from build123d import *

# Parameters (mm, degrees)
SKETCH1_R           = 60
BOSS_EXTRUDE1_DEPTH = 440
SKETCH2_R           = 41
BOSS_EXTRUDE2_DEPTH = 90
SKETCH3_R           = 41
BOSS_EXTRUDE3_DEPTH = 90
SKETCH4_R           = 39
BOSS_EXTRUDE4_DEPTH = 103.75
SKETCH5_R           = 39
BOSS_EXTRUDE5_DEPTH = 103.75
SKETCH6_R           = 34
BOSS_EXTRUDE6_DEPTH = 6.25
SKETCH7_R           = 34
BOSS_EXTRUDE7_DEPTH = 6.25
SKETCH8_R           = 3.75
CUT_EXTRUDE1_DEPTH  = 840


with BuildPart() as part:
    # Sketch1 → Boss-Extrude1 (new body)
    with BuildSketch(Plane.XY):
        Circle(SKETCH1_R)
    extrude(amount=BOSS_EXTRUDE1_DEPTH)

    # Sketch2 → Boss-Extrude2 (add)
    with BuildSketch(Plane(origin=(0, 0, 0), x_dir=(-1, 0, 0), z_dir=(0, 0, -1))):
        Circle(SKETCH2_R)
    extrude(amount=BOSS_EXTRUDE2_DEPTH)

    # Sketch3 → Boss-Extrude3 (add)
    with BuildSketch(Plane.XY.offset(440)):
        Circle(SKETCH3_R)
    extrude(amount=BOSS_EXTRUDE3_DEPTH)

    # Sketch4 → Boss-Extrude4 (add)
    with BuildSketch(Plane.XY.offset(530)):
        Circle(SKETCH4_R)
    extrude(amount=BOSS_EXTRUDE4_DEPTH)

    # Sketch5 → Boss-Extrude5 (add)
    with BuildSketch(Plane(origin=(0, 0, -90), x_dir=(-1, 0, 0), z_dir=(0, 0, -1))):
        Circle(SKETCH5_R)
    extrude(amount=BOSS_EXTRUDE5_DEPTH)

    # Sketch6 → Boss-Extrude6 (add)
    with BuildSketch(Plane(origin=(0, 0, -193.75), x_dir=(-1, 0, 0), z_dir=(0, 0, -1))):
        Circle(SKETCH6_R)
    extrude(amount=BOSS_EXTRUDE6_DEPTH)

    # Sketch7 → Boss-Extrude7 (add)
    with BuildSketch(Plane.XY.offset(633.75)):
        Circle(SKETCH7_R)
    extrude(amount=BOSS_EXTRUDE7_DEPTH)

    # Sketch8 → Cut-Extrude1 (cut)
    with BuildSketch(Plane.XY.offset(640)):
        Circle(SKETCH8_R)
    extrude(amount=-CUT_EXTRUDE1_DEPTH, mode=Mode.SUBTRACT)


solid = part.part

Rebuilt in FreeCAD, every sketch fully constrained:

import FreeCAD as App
import Part
import Sketcher

doc = App.newDocument("Part")
body = doc.addObject("PartDesign::Body", "Body")

sketch1 = body.newObject("Sketcher::SketchObject", "Sketch")
sketch1.AttachmentSupport = (doc.getObject("XY_Plane"), [""])
sketch1.MapMode = "FlatFace"
sketch1.addGeometry(Part.Circle(App.Vector(0, 0, 0), App.Vector(0, 0, 1), 60), False)
sketch1.addConstraint([
    Sketcher.Constraint("Coincident", 0, 3, -1, 1),
    Sketcher.Constraint("Diameter", 0, 120.0),
])
pad1 = body.newObject("PartDesign::Pad", "Pad")
pad1.Profile = sketch1
pad1.Length = 440

sketch2 = body.newObject("Sketcher::SketchObject", "Sketch001")
sketch2.AttachmentSupport = (doc.getObject("XY_Plane"), [""])
sketch2.MapMode = "FlatFace"
sketch2.addGeometry(Part.Circle(App.Vector(0, 0, 0), App.Vector(0, 0, 1), 41), False)
sketch2.addConstraint([
    Sketcher.Constraint("Coincident", 0, 3, -1, 1),
    Sketcher.Constraint("Diameter", 0, 82.0),
])
pad2 = body.newObject("PartDesign::Pad", "Pad001")
pad2.Profile = sketch2
pad2.Length = 90
pad2.Reversed = True

sketch3 = body.newObject("Sketcher::SketchObject", "Sketch002")
sketch3.AttachmentSupport = (doc.getObject("XY_Plane"), [""])
sketch3.MapMode = "FlatFace"
sketch3.AttachmentOffset = App.Placement(App.Vector(0, 0, 440), App.Rotation())
sketch3.addGeometry(Part.Circle(App.Vector(0, 0, 0), App.Vector(0, 0, 1), 41), False)
sketch3.addConstraint([
    Sketcher.Constraint("Coincident", 0, 3, -1, 1),
    Sketcher.Constraint("Diameter", 0, 82.0),
])
pad3 = body.newObject("PartDesign::Pad", "Pad002")
pad3.Profile = sketch3
pad3.Length = 90

sketch4 = body.newObject("Sketcher::SketchObject", "Sketch003")
sketch4.AttachmentSupport = (doc.getObject("XY_Plane"), [""])
sketch4.MapMode = "FlatFace"
sketch4.AttachmentOffset = App.Placement(App.Vector(0, 0, 530), App.Rotation())
sketch4.addGeometry(Part.Circle(App.Vector(0, 0, 0), App.Vector(0, 0, 1), 39), False)
sketch4.addConstraint([
    Sketcher.Constraint("Coincident", 0, 3, -1, 1),
    Sketcher.Constraint("Diameter", 0, 78.0),
])
pad4 = body.newObject("PartDesign::Pad", "Pad003")
pad4.Profile = sketch4
pad4.Length = 103.75

sketch5 = body.newObject("Sketcher::SketchObject", "Sketch004")
sketch5.AttachmentSupport = (doc.getObject("XY_Plane"), [""])
sketch5.MapMode = "FlatFace"
sketch5.AttachmentOffset = App.Placement(App.Vector(0, 0, -90), App.Rotation())
sketch5.addGeometry(Part.Circle(App.Vector(0, 0, 0), App.Vector(0, 0, 1), 39), False)
sketch5.addConstraint([
    Sketcher.Constraint("Coincident", 0, 3, -1, 1),
    Sketcher.Constraint("Diameter", 0, 78.0),
])
pad5 = body.newObject("PartDesign::Pad", "Pad004")
pad5.Profile = sketch5
pad5.Length = 103.75
pad5.Reversed = True

sketch6 = body.newObject("Sketcher::SketchObject", "Sketch005")
sketch6.AttachmentSupport = (doc.getObject("XY_Plane"), [""])
sketch6.MapMode = "FlatFace"
sketch6.AttachmentOffset = App.Placement(App.Vector(0, 0, -193.75), App.Rotation())
sketch6.addGeometry(Part.Circle(App.Vector(0, 0, 0), App.Vector(0, 0, 1), 34), False)
sketch6.addConstraint([
    Sketcher.Constraint("Coincident", 0, 3, -1, 1),
    Sketcher.Constraint("Diameter", 0, 68.0),
])
pad6 = body.newObject("PartDesign::Pad", "Pad005")
pad6.Profile = sketch6
pad6.Length = 6.25
pad6.Reversed = True

sketch7 = body.newObject("Sketcher::SketchObject", "Sketch006")
sketch7.AttachmentSupport = (doc.getObject("XY_Plane"), [""])
sketch7.MapMode = "FlatFace"
sketch7.AttachmentOffset = App.Placement(App.Vector(0, 0, 633.75), App.Rotation())
sketch7.addGeometry(Part.Circle(App.Vector(0, 0, 0), App.Vector(0, 0, 1), 34), False)
sketch7.addConstraint([
    Sketcher.Constraint("Coincident", 0, 3, -1, 1),
    Sketcher.Constraint("Diameter", 0, 68.0),
])
pad7 = body.newObject("PartDesign::Pad", "Pad006")
pad7.Profile = sketch7
pad7.Length = 6.25

sketch8 = body.newObject("Sketcher::SketchObject", "Sketch007")
sketch8.AttachmentSupport = (doc.getObject("XY_Plane"), [""])
sketch8.MapMode = "FlatFace"
sketch8.AttachmentOffset = App.Placement(App.Vector(0, 0, 640), App.Rotation())
sketch8.addGeometry(Part.Circle(App.Vector(0, 0, 0), App.Vector(0, 0, 1), 3.8), False)
sketch8.addConstraint([
    Sketcher.Constraint("Coincident", 0, 3, -1, 1),
    Sketcher.Constraint("Diameter", 0, 7.5),
])
pocket1 = body.newObject("PartDesign::Pocket", "Pocket")
pocket1.Profile = sketch8
pocket1.Length = 840

doc.recompute()
